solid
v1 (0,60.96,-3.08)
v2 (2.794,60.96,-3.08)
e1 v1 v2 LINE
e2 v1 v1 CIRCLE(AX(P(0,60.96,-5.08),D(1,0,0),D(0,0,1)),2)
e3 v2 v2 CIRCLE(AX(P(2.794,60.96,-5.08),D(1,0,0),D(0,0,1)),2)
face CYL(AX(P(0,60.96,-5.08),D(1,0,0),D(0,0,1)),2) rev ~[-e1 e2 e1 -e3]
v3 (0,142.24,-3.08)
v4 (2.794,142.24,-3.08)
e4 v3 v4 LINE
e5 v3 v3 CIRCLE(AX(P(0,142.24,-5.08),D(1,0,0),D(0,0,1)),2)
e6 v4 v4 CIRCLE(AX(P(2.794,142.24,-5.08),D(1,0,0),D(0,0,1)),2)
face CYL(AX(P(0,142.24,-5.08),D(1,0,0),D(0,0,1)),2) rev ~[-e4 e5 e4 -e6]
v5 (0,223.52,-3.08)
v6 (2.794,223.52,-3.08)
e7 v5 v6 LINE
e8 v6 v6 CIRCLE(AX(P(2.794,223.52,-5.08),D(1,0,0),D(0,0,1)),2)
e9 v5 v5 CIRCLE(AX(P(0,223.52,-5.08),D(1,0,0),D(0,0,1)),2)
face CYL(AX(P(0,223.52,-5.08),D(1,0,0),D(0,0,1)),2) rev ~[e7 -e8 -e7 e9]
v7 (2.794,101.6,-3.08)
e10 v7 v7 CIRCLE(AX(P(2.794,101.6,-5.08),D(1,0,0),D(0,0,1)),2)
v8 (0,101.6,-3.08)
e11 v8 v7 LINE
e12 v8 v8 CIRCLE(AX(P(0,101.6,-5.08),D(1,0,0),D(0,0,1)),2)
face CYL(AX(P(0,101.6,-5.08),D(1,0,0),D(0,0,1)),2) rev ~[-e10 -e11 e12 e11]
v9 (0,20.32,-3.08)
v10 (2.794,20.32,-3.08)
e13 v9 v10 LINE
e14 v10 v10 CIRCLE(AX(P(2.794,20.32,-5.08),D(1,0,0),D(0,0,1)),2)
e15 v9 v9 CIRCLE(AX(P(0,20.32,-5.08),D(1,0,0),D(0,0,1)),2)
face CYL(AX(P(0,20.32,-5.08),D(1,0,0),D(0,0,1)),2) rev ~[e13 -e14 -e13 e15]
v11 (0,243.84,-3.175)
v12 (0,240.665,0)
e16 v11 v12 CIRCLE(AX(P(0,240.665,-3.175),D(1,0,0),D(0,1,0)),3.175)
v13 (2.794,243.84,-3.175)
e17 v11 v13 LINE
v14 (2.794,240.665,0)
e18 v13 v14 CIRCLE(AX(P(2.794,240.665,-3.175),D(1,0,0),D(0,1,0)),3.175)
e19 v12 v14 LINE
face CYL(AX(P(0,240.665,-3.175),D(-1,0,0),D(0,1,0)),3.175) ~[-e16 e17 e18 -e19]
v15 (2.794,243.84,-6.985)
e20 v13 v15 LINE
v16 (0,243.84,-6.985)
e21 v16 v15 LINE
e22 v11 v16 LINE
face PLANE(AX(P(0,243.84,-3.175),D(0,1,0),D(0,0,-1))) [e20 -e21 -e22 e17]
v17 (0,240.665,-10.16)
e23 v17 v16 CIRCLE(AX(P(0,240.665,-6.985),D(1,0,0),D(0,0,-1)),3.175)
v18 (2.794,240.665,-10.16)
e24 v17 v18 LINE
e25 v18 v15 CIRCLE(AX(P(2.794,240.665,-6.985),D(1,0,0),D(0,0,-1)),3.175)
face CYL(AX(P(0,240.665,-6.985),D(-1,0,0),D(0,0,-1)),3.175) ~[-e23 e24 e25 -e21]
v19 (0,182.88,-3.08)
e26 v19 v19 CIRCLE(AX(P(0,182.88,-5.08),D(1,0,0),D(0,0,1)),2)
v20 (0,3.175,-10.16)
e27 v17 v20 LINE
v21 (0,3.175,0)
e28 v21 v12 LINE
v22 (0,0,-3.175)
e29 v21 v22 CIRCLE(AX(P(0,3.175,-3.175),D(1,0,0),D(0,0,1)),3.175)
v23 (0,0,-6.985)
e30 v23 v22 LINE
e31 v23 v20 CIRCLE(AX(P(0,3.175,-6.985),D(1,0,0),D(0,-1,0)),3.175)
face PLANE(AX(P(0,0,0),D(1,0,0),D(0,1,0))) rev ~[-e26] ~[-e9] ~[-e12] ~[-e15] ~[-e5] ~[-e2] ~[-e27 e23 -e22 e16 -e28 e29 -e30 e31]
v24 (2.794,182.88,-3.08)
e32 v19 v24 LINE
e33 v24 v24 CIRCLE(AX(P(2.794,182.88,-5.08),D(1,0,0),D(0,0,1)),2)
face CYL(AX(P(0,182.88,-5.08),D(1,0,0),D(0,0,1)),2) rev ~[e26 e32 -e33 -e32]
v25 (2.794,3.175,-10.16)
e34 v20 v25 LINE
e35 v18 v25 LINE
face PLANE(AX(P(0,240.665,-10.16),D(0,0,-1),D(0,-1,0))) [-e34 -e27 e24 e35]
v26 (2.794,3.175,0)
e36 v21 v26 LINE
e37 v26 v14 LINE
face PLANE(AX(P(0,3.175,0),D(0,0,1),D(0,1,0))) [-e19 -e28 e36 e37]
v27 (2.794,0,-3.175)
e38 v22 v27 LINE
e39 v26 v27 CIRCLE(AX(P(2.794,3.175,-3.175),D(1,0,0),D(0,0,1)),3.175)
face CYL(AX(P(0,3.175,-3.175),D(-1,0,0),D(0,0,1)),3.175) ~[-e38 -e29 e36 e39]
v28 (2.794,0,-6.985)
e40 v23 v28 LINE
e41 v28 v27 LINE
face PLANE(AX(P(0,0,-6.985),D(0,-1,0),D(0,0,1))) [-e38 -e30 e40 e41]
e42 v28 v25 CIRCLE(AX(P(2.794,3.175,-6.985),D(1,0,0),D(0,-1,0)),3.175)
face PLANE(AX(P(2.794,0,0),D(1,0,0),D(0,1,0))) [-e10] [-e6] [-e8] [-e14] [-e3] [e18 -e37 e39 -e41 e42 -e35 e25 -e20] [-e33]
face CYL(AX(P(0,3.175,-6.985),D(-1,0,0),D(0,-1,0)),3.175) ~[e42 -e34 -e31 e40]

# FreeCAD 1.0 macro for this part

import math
import FreeCAD as App
import Part
import Sketcher
from FreeCAD import Vector
Q = App.Units.Quantity

doc = App.newDocument("Part")
body = doc.addObject("PartDesign::Body", "Body")

sketch1 = body.newObject("Sketcher::SketchObject", "Sketch")
sketch1.AttachmentSupport = (doc.getObject("YZ_Plane"), [""])
sketch1.MapMode = "FlatFace"
sketch1.addGeometry([
    Part.LineSegment(Vector(240.7, 0, 0), Vector(3.2, 0, 0)),
    Part.ArcOfCircle(Part.Circle(Vector(3.2, -3.2, 0), Vector(0, 0, 1), 3.2), math.radians(90), math.radians(180)),
    Part.LineSegment(Vector(0, -3.2, 0), Vector(0, -7, 0)),
    Part.ArcOfCircle(Part.Circle(Vector(3.2, -7, 0), Vector(0, 0, 1), 3.2), math.radians(180), math.radians(270)),
    Part.LineSegment(Vector(3.2, -10.2, 0), Vector(240.7, -10.2, 0)),
    Part.ArcOfCircle(Part.Circle(Vector(240.7, -7, 0), Vector(0, 0, 1), 3.2), math.radians(-90), math.radians(0)),
    Part.LineSegment(Vector(243.8, -7, 0), Vector(243.8, -3.2, 0)),
    Part.ArcOfCircle(Part.Circle(Vector(240.7, -3.2, 0), Vector(0, 0, 1), 3.2), math.radians(0), math.radians(90)),
], False)
sketch1.addConstraint([
    Sketcher.Constraint("Tangent", 0, 2, 1, 1),
    Sketcher.Constraint("Tangent", 1, 2, 2, 1),
    Sketcher.Constraint("Tangent", 2, 2, 3, 1),
    Sketcher.Constraint("Tangent", 3, 2, 4, 1),
    Sketcher.Constraint("Tangent", 4, 2, 5, 1),
    Sketcher.Constraint("Tangent", 5, 2, 6, 1),
    Sketcher.Constraint("Tangent", 6, 2, 7, 1),
    Sketcher.Constraint("Tangent", 7, 2, 0, 1),
    Sketcher.Constraint("Horizontal", 0),
    Sketcher.Constraint("Vertical", 2),
    Sketcher.Constraint("Horizontal", 4),
    Sketcher.Constraint("Vertical", 6),
    Sketcher.Constraint("Equal", 1, 3),
    Sketcher.Constraint("Equal", 3, 5),
    Sketcher.Constraint("Equal", 5, 7),
    Sketcher.Constraint("PointOnObject", 0, 2, -1),
    Sketcher.Constraint("PointOnObject", 1, 2, -2),
    Sketcher.Constraint("Radius", 1, Q("0.125 in")),
    Sketcher.Constraint("DistanceY", 3, 2, -1, 1, Q("0.4 in")),
    Sketcher.Constraint("DistanceX", -1, 1, 5, 2, Q("9.6 in")),
])
pad1 = body.newObject("PartDesign::Pad", "Pad")
pad1.Profile = sketch1
pad1.Length = Q("0.11 in")

sketch2 = body.newObject("Sketcher::SketchObject", "Sketch001")
sketch2.AttachmentSupport = (doc.getObject("YZ_Plane"), [""])
sketch2.MapMode = "FlatFace"
sketch2.addGeometry([
    Part.Circle(Vector(20.3, -5.1, 0), Vector(0, 0, 1), 2),
    Part.Circle(Vector(61, -5.1, 0), Vector(0, 0, 1), 2),
    Part.Circle(Vector(101.6, -5.1, 0), Vector(0, 0, 1), 2),
    Part.Circle(Vector(142.2, -5.1, 0), Vector(0, 0, 1), 2),
    Part.Circle(Vector(182.9, -5.1, 0), Vector(0, 0, 1), 2),
    Part.Circle(Vector(223.5, -5.1, 0), Vector(0, 0, 1), 2),
], False)
sketch2.addConstraint([
    Sketcher.Constraint("Equal", 0, 1),
    Sketcher.Constraint("Equal", 1, 2),
    Sketcher.Constraint("Equal", 2, 3),
    Sketcher.Constraint("Equal", 3, 4),
    Sketcher.Constraint("Equal", 4, 5),
    Sketcher.Constraint("Horizontal", 0, 3, 1, 3),
    Sketcher.Constraint("Horizontal", 1, 3, 2, 3),
    Sketcher.Constraint("Horizontal", 2, 3, 3, 3),
    Sketcher.Constraint("Horizontal", 3, 3, 4, 3),
    Sketcher.Constraint("Horizontal", 4, 3, 5, 3),
    Sketcher.Constraint("DistanceX", -1, 1, 2, 3, Q("4 in")),
    Sketcher.Constraint("DistanceX", 0, 3, 5, 3, Q("8 in")),
    Sketcher.Constraint("DistanceX", -1, 1, 0, 3, Q("0.8 in")),
    Sketcher.Constraint("DistanceY", 0, 3, -1, 1, Q("0.2 in")),
    Sketcher.Constraint("DistanceX", -1, 1, 1, 3, Q("2.4 in")),
    Sketcher.Constraint("DistanceX", -1, 1, 3, 3, Q("5.6 in")),
    Sketcher.Constraint("DistanceX", -1, 1, 4, 3, Q("7.2 in")),
    Sketcher.Constraint("Diameter", 0, 4.0),
])
doc.recompute()
hole = body.newObject("PartDesign::Hole", "Hole")
hole.Profile = sketch2
hole.ThreadType = "None"
hole.Diameter = 4
hole.DepthType = "ThroughAll"
hole.Reversed = True

doc.recompute()
